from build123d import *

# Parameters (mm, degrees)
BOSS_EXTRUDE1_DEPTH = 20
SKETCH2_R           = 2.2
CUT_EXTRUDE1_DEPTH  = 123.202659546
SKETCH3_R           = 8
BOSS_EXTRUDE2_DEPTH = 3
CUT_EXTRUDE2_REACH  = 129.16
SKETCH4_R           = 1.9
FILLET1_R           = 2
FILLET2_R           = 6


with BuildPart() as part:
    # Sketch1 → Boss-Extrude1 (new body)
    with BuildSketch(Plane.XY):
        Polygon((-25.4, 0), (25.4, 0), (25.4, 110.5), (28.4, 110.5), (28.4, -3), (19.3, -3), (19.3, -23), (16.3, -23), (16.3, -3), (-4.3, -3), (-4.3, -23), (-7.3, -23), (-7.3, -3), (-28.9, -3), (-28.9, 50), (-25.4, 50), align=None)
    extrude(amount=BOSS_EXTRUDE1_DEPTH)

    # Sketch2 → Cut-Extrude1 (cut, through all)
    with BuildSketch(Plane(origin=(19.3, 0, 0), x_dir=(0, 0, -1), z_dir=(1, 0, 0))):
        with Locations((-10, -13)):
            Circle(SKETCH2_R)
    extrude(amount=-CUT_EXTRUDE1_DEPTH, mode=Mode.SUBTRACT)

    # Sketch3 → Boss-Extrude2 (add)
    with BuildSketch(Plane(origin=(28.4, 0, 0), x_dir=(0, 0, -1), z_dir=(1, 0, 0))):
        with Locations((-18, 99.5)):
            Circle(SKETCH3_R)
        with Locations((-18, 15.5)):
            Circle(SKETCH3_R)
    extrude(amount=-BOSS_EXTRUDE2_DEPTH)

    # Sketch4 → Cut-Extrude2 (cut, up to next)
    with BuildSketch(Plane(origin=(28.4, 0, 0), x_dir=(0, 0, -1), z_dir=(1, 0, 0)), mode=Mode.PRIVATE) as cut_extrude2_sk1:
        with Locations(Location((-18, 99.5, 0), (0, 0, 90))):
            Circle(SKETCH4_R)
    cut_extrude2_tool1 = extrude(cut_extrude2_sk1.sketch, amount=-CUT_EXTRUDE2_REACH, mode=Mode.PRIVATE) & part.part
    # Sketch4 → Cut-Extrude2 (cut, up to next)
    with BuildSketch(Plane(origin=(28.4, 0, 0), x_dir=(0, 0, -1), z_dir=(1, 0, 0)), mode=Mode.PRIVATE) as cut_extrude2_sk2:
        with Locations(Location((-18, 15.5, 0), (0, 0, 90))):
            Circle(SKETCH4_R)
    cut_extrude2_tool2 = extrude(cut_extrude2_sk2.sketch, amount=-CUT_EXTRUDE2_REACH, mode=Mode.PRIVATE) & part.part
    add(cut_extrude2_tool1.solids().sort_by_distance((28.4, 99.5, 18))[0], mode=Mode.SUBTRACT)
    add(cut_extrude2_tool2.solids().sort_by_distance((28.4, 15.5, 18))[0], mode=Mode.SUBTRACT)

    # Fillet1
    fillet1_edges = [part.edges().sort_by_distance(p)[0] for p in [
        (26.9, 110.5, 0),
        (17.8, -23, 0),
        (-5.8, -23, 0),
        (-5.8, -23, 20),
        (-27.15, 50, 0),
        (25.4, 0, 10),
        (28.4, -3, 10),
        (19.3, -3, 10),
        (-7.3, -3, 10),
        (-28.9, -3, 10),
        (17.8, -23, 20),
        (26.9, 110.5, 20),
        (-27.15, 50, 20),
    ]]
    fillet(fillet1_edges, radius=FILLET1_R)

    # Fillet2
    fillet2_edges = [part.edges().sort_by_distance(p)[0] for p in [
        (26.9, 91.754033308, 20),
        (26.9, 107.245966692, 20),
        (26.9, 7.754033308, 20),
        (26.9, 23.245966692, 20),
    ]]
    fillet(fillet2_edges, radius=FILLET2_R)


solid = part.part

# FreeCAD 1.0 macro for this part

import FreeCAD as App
import Part
import Sketcher

V = App.Vector


def edges_at(feature, points):
    """Names of the edges that pass closest to the given points."""
    edges = feature.Shape.Edges
    near = lambda p: min(range(len(edges)), key=lambda i: edges[i].distToShape(Part.Vertex(*p))[0])
    return sorted({f"Edge{near(p) + 1}" for p in points})

doc = App.newDocument("Part")
body = doc.addObject("PartDesign::Body", "Body")

# Sketch on XY plane
sketch1 = doc.addObject("Sketcher::SketchObject", "Sketch")
body.addObject(sketch1)
sketch1.AttachmentSupport = (doc.XY_Plane, [""])
sketch1.MapMode = "FlatFace"
sketch1.addGeometry(Part.LineSegment(V(25.4, 0, 0), V(-25.4, 0, 0)), False)
sketch1.addGeometry(Part.LineSegment(V(-25.4, 0, 0), V(-25.4, 50, 0)), False)
sketch1.addGeometry(Part.LineSegment(V(-25.4, 50, 0), V(-28.9, 50, 0)), False)
sketch1.addGeometry(Part.LineSegment(V(-28.9, 50, 0), V(-28.9, -3, 0)), False)
sketch1.addGeometry(Part.LineSegment(V(-28.9, -3, 0), V(-7.3, -3, 0)), False)
sketch1.addGeometry(Part.LineSegment(V(-7.3, -3, 0), V(-7.3, -23, 0)), False)
sketch1.addGeometry(Part.LineSegment(V(-7.3, -23, 0), V(-4.3, -23, 0)), False)
sketch1.addGeometry(Part.LineSegment(V(-4.3, -23, 0), V(-4.3, -3, 0)), False)
sketch1.addGeometry(Part.LineSegment(V(-4.3, -3, 0), V(16.3, -3, 0)), False)
sketch1.addGeometry(Part.LineSegment(V(16.3, -3, 0), V(16.3, -23, 0)), False)
sketch1.addGeometry(Part.LineSegment(V(16.3, -23, 0), V(19.3, -23, 0)), False)
sketch1.addGeometry(Part.LineSegment(V(19.3, -23, 0), V(19.3, -3, 0)), False)
sketch1.addGeometry(Part.LineSegment(V(19.3, -3, 0), V(28.4, -3, 0)), False)
sketch1.addGeometry(Part.LineSegment(V(28.4, -3, 0), V(28.4, 110.5, 0)), False)
sketch1.addGeometry(Part.LineSegment(V(28.4, 110.5, 0), V(25.4, 110.5, 0)), False)
sketch1.addGeometry(Part.LineSegment(V(25.4, 110.5, 0), V(25.4, 0, 0)), False)
sketch1.addConstraint(Sketcher.Constraint("Coincident", 0, 2, 1, 1))
sketch1.addConstraint(Sketcher.Constraint("Coincident", 1, 2, 2, 1))
sketch1.addConstraint(Sketcher.Constraint("Coincident", 2, 2, 3, 1))
sketch1.addConstraint(Sketcher.Constraint("Coincident", 3, 2, 4, 1))
sketch1.addConstraint(Sketcher.Constraint("Coincident", 4, 2, 5, 1))
sketch1.addConstraint(Sketcher.Constraint("Coincident", 5, 2, 6, 1))
sketch1.addConstraint(Sketcher.Constraint("Coincident", 6, 2, 7, 1))
sketch1.addConstraint(Sketcher.Constraint("Coincident", 7, 2, 8, 1))
sketch1.addConstraint(Sketcher.Constraint("Coincident", 8, 2, 9, 1))
sketch1.addConstraint(Sketcher.Constraint("Coincident", 9, 2, 10, 1))
sketch1.addConstraint(Sketcher.Constraint("Coincident", 10, 2, 11, 1))
sketch1.addConstraint(Sketcher.Constraint("Coincident", 11, 2, 12, 1))
sketch1.addConstraint(Sketcher.Constraint("Coincident", 12, 2, 13, 1))
sketch1.addConstraint(Sketcher.Constraint("Coincident", 13, 2, 14, 1))
sketch1.addConstraint(Sketcher.Constraint("Coincident", 14, 2, 15, 1))
sketch1.addConstraint(Sketcher.Constraint("Coincident", 15, 2, 0, 1))
sketch1.addConstraint(Sketcher.Constraint("Horizontal", 0))
sketch1.addConstraint(Sketcher.Constraint("Vertical", 1))
sketch1.addConstraint(Sketcher.Constraint("Horizontal", 2))
sketch1.addConstraint(Sketcher.Constraint("Vertical", 3))
sketch1.addConstraint(Sketcher.Constraint("Horizontal", 4))
sketch1.addConstraint(Sketcher.Constraint("Vertical", 5))
sketch1.addConstraint(Sketcher.Constraint("Horizontal", 6))
sketch1.addConstraint(Sketcher.Constraint("Vertical", 7))
sketch1.addConstraint(Sketcher.Constraint("Horizontal", 8))
sketch1.addConstraint(Sketcher.Constraint("Vertical", 9))
sketch1.addConstraint(Sketcher.Constraint("Horizontal", 10))
sketch1.addConstraint(Sketcher.Constraint("Vertical", 11))
sketch1.addConstraint(Sketcher.Constraint("Horizontal", 12))
sketch1.addConstraint(Sketcher.Constraint("Vertical", 13))
sketch1.addConstraint(Sketcher.Constraint("Horizontal", 14))
sketch1.addConstraint(Sketcher.Constraint("Vertical", 15))
sketch1.addConstraint(Sketcher.Constraint("Symmetric", 0, 2, 15, 2, -1, 1))
sketch1.addConstraint(Sketcher.Constraint("Horizontal", 4, 2, 7, 2))
sketch1.addConstraint(Sketcher.Constraint("Horizontal", 6, 2, 9, 2))
sketch1.addConstraint(Sketcher.Constraint("Horizontal", 8, 2, 11, 2))
sketch1.addConstraint(Sketcher.Constraint("Equal", 6, 10))
sketch1.addConstraint(Sketcher.Constraint("Equal", 10, 14))
sketch1.addConstraint(Sketcher.Constraint("DistanceX", 6, 1, 6, 2, 3.0))
sketch1.addConstraint(Sketcher.Constraint("DistanceY", 1, 1, 1, 2, 50.0))
sketch1.addConstraint(Sketcher.Constraint("DistanceY", 3, 2, 3, 1, 53.0))
sketch1.addConstraint(Sketcher.Constraint("DistanceY", 5, 2, 5, 1, 20.0))
sketch1.addConstraint(Sketcher.Constraint("DistanceX", 0, 2, 0, 1, 50.8))
sketch1.addConstraint(Sketcher.Constraint("DistanceX", 2, 2, 2, 1, 3.5))
sketch1.addConstraint(Sketcher.Constraint("DistanceX", 4, 1, 4, 2, 21.6))
sketch1.addConstraint(Sketcher.Constraint("DistanceX", 8, 1, 8, 2, 20.6))
sketch1.addConstraint(Sketcher.Constraint("DistanceY", 13, 1, 13, 2, 113.5))
pad1 = doc.addObject("PartDesign::Pad", "Pad")
body.addObject(pad1)
pad1.Profile = sketch1
pad1.Length = 20

# Sketch on YZ plane
sketch2 = doc.addObject("Sketcher::SketchObject", "Sketch001")
body.addObject(sketch2)
sketch2.AttachmentSupport = (doc.YZ_Plane, [""])
sketch2.MapMode = "FlatFace"
sketch2.AttachmentOffset = App.Placement(V(0, 0, 19.3), App.Rotation())
sketch2.addGeometry(Part.Circle(V(-13, 10, 0), V(0, 0, 1), 2.2), False)
sketch2.addConstraint(Sketcher.Constraint("Diameter", 0, 4.4))
sketch2.addConstraint(Sketcher.Constraint("DistanceX", 0, 3, -1, 1, 13.0))
sketch2.addConstraint(Sketcher.Constraint("DistanceY", -1, 1, 0, 3, 10.0))
pocket1 = doc.addObject("PartDesign::Pocket", "Pocket")
body.addObject(pocket1)
pocket1.Profile = sketch2
pocket1.Type = "ThroughAll"

# Sketch on YZ plane
sketch3 = doc.addObject("Sketcher::SketchObject", "Sketch002")
body.addObject(sketch3)
sketch3.AttachmentSupport = (doc.YZ_Plane, [""])
sketch3.MapMode = "FlatFace"
sketch3.AttachmentOffset = App.Placement(V(0, 0, 28.4), App.Rotation())
sketch3.addGeometry(Part.Circle(V(100, 18, 0), V(0, 0, 1), 8), False)
sketch3.addGeometry(Part.Circle(V(16, 18, 0), V(0, 0, 1), 8), False)
sketch3.addConstraint(Sketcher.Constraint("Equal", 0, 1))
sketch3.addConstraint(Sketcher.Constraint("Horizontal", 0, 3, 1, 3))
sketch3.addConstraint(Sketcher.Constraint("Diameter", 0, 16.0))
sketch3.addConstraint(Sketcher.Constraint("DistanceY", -1, 1, 0, 3, 18.0))
sketch3.addConstraint(Sketcher.Constraint("DistanceX", 1, 3, 0, 3, 84.0))
sketch3.addConstraint(Sketcher.Constraint("DistanceX", -1, 1, 0, 3, 99.5))
pad2 = doc.addObject("PartDesign::Pad", "Pad001")
body.addObject(pad2)
pad2.Profile = sketch3
pad2.Length = 3
pad2.Reversed = True

# Sketch on YZ plane
sketch4 = doc.addObject("Sketcher::SketchObject", "Sketch003")
body.addObject(sketch4)
sketch4.AttachmentSupport = (doc.YZ_Plane, [""])
sketch4.MapMode = "FlatFace"
sketch4.AttachmentOffset = App.Placement(V(0, 0, 28.4), App.Rotation())
sketch4.addGeometry(Part.Circle(V(99.5, 18, 0), V(0, 0, 1), 1.9), False)
sketch4.addConstraint(Sketcher.Constraint("Diameter", 0, 3.8))
sketch4.addConstraint(Sketcher.Constraint("DistanceY", -1, 1, 0, 3, 18.0))
sketch4.addConstraint(Sketcher.Constraint("DistanceX", -1, 1, 0, 3, 99.5))
pocket2 = doc.addObject("PartDesign::Pocket", "Pocket001")
body.addObject(pocket2)
pocket2.Profile = sketch4
pocket2.Type = "UpToFirst"

# Sketch on YZ plane
sketch5 = doc.addObject("Sketcher::SketchObject", "Sketch004")
body.addObject(sketch5)
sketch5.AttachmentSupport = (doc.YZ_Plane, [""])
sketch5.MapMode = "FlatFace"
sketch5.AttachmentOffset = App.Placement(V(0, 0, 28.4), App.Rotation())
sketch5.addGeometry(Part.Circle(V(15.5, 18, 0), V(0, 0, 1), 1.9), False)
sketch5.addConstraint(Sketcher.Constraint("Diameter", 0, 3.8))
sketch5.addConstraint(Sketcher.Constraint("DistanceY", -1, 1, 0, 3, 18.0))
sketch5.addConstraint(Sketcher.Constraint("DistanceX", -1, 1, 0, 3, 15.5))
pocket3 = doc.addObject("PartDesign::Pocket", "Pocket002")
body.addObject(pocket3)
pocket3.Profile = sketch5
pocket3.Type = "UpToFirst"
doc.recompute()

fillet = doc.addObject("PartDesign::Fillet", "Fillet")
body.addObject(fillet)
fillet.Base = (pocket3, edges_at(pocket3, [
    (26.9, 110.5, 0),
    (17.8, -23, 0),
    (-5.8, -23, 0),
    (-5.8, -23, 20),
    (-27.15, 50, 0),
    (25.4, 0, 10),
    (28.4, -3, 10),
    (19.3, -3, 10),
    (-7.3, -3, 10),
    (-28.9, -3, 10),
    (17.8, -23, 20),
    (26.9, 110.5, 20),
    (-27.15, 50, 20),
]))
fillet.Radius = 2
doc.recompute()

fillet2 = doc.addObject("PartDesign::Fillet", "Fillet001")
body.addObject(fillet2)
fillet2.Base = (fillet, edges_at(fillet, [
    (26.9, 91.754, 20),
    (26.9, 107.246, 20),
    (26.9, 7.754, 20),
    (26.9, 23.246, 20),
]))
fillet2.Radius = 6

doc.recompute()
